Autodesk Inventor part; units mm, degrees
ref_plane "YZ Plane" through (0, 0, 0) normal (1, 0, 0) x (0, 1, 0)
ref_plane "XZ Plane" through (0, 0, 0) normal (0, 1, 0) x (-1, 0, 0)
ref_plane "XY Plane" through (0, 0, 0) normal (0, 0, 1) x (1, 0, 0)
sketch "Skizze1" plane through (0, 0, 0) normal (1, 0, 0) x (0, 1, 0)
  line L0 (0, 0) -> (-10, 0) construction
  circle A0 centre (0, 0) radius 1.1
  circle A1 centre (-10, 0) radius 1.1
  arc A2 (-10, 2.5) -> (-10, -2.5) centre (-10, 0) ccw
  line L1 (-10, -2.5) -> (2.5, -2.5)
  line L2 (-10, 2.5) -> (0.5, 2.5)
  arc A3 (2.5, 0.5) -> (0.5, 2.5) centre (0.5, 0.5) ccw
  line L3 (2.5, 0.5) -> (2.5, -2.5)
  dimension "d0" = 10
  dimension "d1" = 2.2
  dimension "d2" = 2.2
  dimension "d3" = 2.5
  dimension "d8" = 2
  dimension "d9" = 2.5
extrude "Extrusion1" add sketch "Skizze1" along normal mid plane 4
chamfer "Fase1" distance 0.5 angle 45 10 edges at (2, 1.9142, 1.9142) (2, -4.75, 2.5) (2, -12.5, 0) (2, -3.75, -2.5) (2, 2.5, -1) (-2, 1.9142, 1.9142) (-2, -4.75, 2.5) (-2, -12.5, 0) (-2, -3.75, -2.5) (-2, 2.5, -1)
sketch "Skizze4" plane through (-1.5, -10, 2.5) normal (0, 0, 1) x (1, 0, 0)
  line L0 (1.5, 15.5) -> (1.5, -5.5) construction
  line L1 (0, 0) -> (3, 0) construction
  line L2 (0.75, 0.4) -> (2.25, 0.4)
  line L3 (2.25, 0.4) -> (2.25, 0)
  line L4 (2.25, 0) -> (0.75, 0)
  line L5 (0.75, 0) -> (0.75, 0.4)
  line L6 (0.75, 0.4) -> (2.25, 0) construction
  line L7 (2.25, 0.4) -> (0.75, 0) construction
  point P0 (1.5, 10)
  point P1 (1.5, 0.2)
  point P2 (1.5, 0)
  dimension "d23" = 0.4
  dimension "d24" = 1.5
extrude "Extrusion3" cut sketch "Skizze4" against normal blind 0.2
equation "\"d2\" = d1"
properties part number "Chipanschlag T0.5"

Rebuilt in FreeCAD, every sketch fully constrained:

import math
import FreeCAD as App
import Part
import Sketcher

V = App.Vector


def edges_at(feature, points):
    """Names of the edges that pass closest to the given points."""
    edges = feature.Shape.Edges
    near = lambda p: min(range(len(edges)), key=lambda i: edges[i].distToShape(Part.Vertex(*p))[0])
    return sorted({f"Edge{near(p) + 1}" for p in points})

doc = App.newDocument("Part")
body = doc.addObject("PartDesign::Body", "Body")

# Sketch on YZ plane
sketch1 = body.newObject("Sketcher::SketchObject", "Sketch")
sketch1.AttachmentSupport = (doc.getObject("YZ_Plane"), [""])
sketch1.MapMode = "FlatFace"
sketch1.addGeometry([
    Part.LineSegment(V(0.5, 2.5, 0), V(-10, 2.5, 0)),  # 0
    Part.ArcOfCircle(Part.Circle(V(-10, 0, 0), V(0, 0, 1), 2.5), math.radians(90), math.radians(270)),  # 1
    Part.LineSegment(V(-10, -2.5, 0), V(2.5, -2.5, 0)),  # 2
    Part.LineSegment(V(2.5, -2.5, 0), V(2.5, 0.5, 0)),  # 3
    Part.ArcOfCircle(Part.Circle(V(0.5, 0.5, 0), V(0, 0, 1), 2), math.radians(0), math.radians(90)),  # 4
    Part.Circle(V(-10, 0, 0), V(0, 0, 1), 1.1),  # 5
    Part.Circle(V(0, 0, 0), V(0, 0, 1), 1.1),  # 6
], False)
sketch1.addConstraint([
    Sketcher.Constraint("Tangent", 0, 2, 1, 1),
    Sketcher.Constraint("Tangent", 1, 2, 2, 1),
    Sketcher.Constraint("Coincident", 2, 2, 3, 1),
    Sketcher.Constraint("Tangent", 3, 2, 4, 1),
    Sketcher.Constraint("Tangent", 4, 2, 0, 1),
    Sketcher.Constraint("Horizontal", 0),
    Sketcher.Constraint("Horizontal", 2),
    Sketcher.Constraint("Vertical", 3),
    Sketcher.Constraint("Coincident", 6, 3, -1, 1),
    Sketcher.Constraint("Coincident", 5, 3, 1, 3),
    Sketcher.Constraint("Equal", 5, 6),
    Sketcher.Constraint("PointOnObject", 1, 3, -1),
    Sketcher.Constraint("Radius", 4, 2.0),
    Sketcher.Constraint("Diameter", 5, 2.2),
    Sketcher.Constraint("Radius", 1, 2.5),
    Sketcher.Constraint("DistanceX", 1, 3, -1, 1, 10.0),
    Sketcher.Constraint("DistanceX", -1, 1, 2, 2, 2.5),
])
pad1 = body.newObject("PartDesign::Pad", "Pad")
pad1.Profile = sketch1
pad1.Length = 4
pad1.Midplane = True
doc.recompute()

chamfer = body.newObject("PartDesign::Chamfer", "Chamfer")
chamfer.Base = (pad1, edges_at(pad1, [
    (2, 1.914, 1.914),
    (2, -4.75, 2.5),
    (2, -12.5, 0),
    (2, -3.75, -2.5),
    (2, 2.5, -1),
    (-2, 1.914, 1.914),
    (-2, -4.75, 2.5),
    (-2, -12.5, 0),
    (-2, -3.75, -2.5),
    (-2, 2.5, -1),
]))
chamfer.Size = 0.5

# Sketch on XY plane
sketch2 = body.newObject("Sketcher::SketchObject", "Sketch001")
sketch2.AttachmentSupport = (doc.getObject("XY_Plane"), [""])
sketch2.MapMode = "FlatFace"
sketch2.AttachmentOffset = App.Placement(V(0, 0, 2.5), App.Rotation())
sketch2.addGeometry([
    Part.LineSegment(V(0.75, -9.6, 0), V(-0.75, -9.6, 0)),
    Part.LineSegment(V(-0.75, -9.6, 0), V(-0.75, -10, 0)),
    Part.LineSegment(V(-0.75, -10, 0), V(0.75, -10, 0)),
    Part.LineSegment(V(0.75, -10, 0), V(0.75, -9.6, 0)),
], False)
sketch2.addConstraint([
    Sketcher.Constraint("Coincident", 0, 2, 1, 1),
    Sketcher.Constraint("Coincident", 1, 2, 2, 1),
    Sketcher.Constraint("Coincident", 2, 2, 3, 1),
    Sketcher.Constraint("Coincident", 3, 2, 0, 1),
    Sketcher.Constraint("Horizontal", 0),
    Sketcher.Constraint("Vertical", 1),
    Sketcher.Constraint("Horizontal", 2),
    Sketcher.Constraint("Vertical", 3),
    Sketcher.Constraint("DistanceX", 0, 2, 0, 1, 1.5),
    Sketcher.Constraint("DistanceY", 1, 2, 1, 1, 0.4),
    Sketcher.Constraint("DistanceY", 1, 2, -1, 1, 10.0),
    Sketcher.Constraint("DistanceX", 0, 2, -1, 1, 0.75),
])
pocket1 = body.newObject("PartDesign::Pocket", "Pocket")
pocket1.Profile = sketch2
pocket1.Length = 0.2

doc.recompute()
